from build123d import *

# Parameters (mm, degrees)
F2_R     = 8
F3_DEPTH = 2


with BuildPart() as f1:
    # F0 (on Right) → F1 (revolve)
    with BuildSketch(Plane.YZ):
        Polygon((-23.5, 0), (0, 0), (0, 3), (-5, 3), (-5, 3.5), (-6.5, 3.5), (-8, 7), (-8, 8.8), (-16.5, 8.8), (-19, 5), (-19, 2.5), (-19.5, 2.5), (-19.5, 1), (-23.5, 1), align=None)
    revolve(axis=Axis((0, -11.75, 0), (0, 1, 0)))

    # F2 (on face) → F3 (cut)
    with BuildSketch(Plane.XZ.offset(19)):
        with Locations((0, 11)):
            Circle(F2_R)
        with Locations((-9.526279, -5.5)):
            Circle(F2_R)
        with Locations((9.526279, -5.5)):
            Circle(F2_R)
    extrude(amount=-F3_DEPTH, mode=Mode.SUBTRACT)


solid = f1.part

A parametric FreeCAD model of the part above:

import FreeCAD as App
import Part
import Sketcher

V = App.Vector

doc = App.newDocument("Part")
params = doc.addObject("Spreadsheet::Sheet", "Params")
for row, (alias, value) in enumerate([
    ("sketch1_width", "5 mm"),
    ("sketch1_width2", "4 mm"),
    ("sketch1_height", "3 mm"),
    ("sketch1_height2", "1 mm"),
    ("sketch1_width3", "23.5 mm"),
    ("revolution_angle", "360 deg"),
    ("sketch2_diameter", "16 mm"),
    ("pocket1_length", "2 mm"),
], start=1):
    params.set(f"A{row}", alias)
    params.set(f"B{row}", "=" + value)
    params.setAlias(f"B{row}", alias)

body = doc.addObject("PartDesign::Body", "Body")

# Sketch on YZ plane
sketch1 = doc.addObject("Sketcher::SketchObject", "Sketch")
body.addObject(sketch1)
sketch1.AttachmentSupport = (doc.YZ_Plane, [""])
sketch1.MapMode = "FlatFace"
sketch1.addGeometry([
    Part.LineSegment(V(-23.5, 0, 0), V(0, 0, 0)),  # 0
    Part.LineSegment(V(0, 0, 0), V(0, 3, 0)),  # 1
    Part.LineSegment(V(0, 3, 0), V(-5, 3, 0)),  # 2
    Part.LineSegment(V(-5, 3, 0), V(-5, 3.5, 0)),  # 3
    Part.LineSegment(V(-5, 3.5, 0), V(-6.5, 3.5, 0)),  # 4
    Part.LineSegment(V(-6.5, 3.5, 0), V(-8, 7, 0)),  # 5
    Part.LineSegment(V(-8, 7, 0), V(-8, 8.8, 0)),  # 6
    Part.LineSegment(V(-8, 8.8, 0), V(-16.5, 8.8, 0)),  # 7
    Part.LineSegment(V(-16.5, 8.8, 0), V(-19, 5, 0)),  # 8
    Part.LineSegment(V(-19, 5, 0), V(-19, 2.5, 0)),  # 9
    Part.LineSegment(V(-19, 2.5, 0), V(-19.5, 2.5, 0)),  # 10
    Part.LineSegment(V(-19.5, 2.5, 0), V(-19.5, 1, 0)),  # 11
    Part.LineSegment(V(-19.5, 1, 0), V(-23.5, 1, 0)),  # 12
    Part.LineSegment(V(-23.5, 1, 0), V(-23.5, 0, 0)),  # 13
], False)
sketch1.addConstraint([
    Sketcher.Constraint("Coincident", 0, 2, 1, 1),
    Sketcher.Constraint("Coincident", 1, 2, 2, 1),
    Sketcher.Constraint("Coincident", 2, 2, 3, 1),
    Sketcher.Constraint("Coincident", 3, 2, 4, 1),
    Sketcher.Constraint("Coincident", 4, 2, 5, 1),
    Sketcher.Constraint("Coincident", 5, 2, 6, 1),
    Sketcher.Constraint("Coincident", 6, 2, 7, 1),
    Sketcher.Constraint("Coincident", 7, 2, 8, 1),
    Sketcher.Constraint("Coincident", 8, 2, 9, 1),
    Sketcher.Constraint("Coincident", 9, 2, 10, 1),
    Sketcher.Constraint("Coincident", 10, 2, 11, 1),
    Sketcher.Constraint("Coincident", 11, 2, 12, 1),
    Sketcher.Constraint("Coincident", 12, 2, 13, 1),
    Sketcher.Constraint("Coincident", 13, 2, 0, 1),
    Sketcher.Constraint("Horizontal", 0),
    Sketcher.Constraint("Vertical", 1),
    Sketcher.Constraint("Horizontal", 2),
    Sketcher.Constraint("Vertical", 3),
    Sketcher.Constraint("Horizontal", 4),
    Sketcher.Constraint("Vertical", 6),
    Sketcher.Constraint("Horizontal", 7),
    Sketcher.Constraint("Vertical", 9),
    Sketcher.Constraint("Horizontal", 10),
    Sketcher.Constraint("Vertical", 11),
    Sketcher.Constraint("Horizontal", 12),
    Sketcher.Constraint("Vertical", 13),
    Sketcher.Constraint("Coincident", 0, 2, -1, 1),
    Sketcher.Constraint("Equal", 10, 3),
    Sketcher.Constraint("Equal", 4, 11),
    Sketcher.Constraint("DistanceX", 2, 2, 2, 1, 5.0),
    Sketcher.Constraint("DistanceX", 12, 2, 12, 1, 4.0),
    Sketcher.Constraint("DistanceY", 1, 1, 1, 2, 3.0),
    Sketcher.Constraint("DistanceY", 13, 2, 13, 1, 1.0),
    Sketcher.Constraint("DistanceX", 0, 1, 0, 2, 23.5),
    Sketcher.Constraint("DistanceX", 4, 2, 4, 1, 1.5),
    Sketcher.Constraint("DistanceX", 7, 2, 7, 1, 8.5),
    Sketcher.Constraint("DistanceX", 10, 2, 10, 1, 0.5),
    Sketcher.Constraint("DistanceY", 6, 1, 6, 2, 1.8),
    Sketcher.Constraint("DistanceY", 9, 2, 9, 1, 2.5),
    Sketcher.Constraint("DistanceX", 5, 2, -1, 1, 8.0),
    Sketcher.Constraint("DistanceY", -1, 1, 5, 2, 7.0),
])
sketch1.setExpression("Constraints[29]", "Params.sketch1_width")
sketch1.setExpression("Constraints[30]", "Params.sketch1_width2")
sketch1.setExpression("Constraints[31]", "Params.sketch1_height")
sketch1.setExpression("Constraints[32]", "Params.sketch1_height2")
sketch1.setExpression("Constraints[33]", "Params.sketch1_width3")
revolution = doc.addObject("PartDesign::Revolution", "Revolution")
body.addObject(revolution)
revolution.Profile = sketch1
revolution.ReferenceAxis = (sketch1, ["H_Axis"])
revolution.setExpression("Angle", "Params.revolution_angle")

# Sketch on XZ plane
sketch2 = doc.addObject("Sketcher::SketchObject", "Sketch001")
body.addObject(sketch2)
sketch2.AttachmentSupport = (doc.XZ_Plane, [""])
sketch2.MapMode = "FlatFace"
sketch2.AttachmentOffset = App.Placement(V(0, 0, 19), App.Rotation())
sketch2.addGeometry([
    Part.Circle(V(0, 11, 0), V(0, 0, 1), 8),
    Part.Circle(V(-10, -6, 0), V(0, 0, 1), 8),
    Part.Circle(V(10, -6, 0), V(0, 0, 1), 8),
], False)
sketch2.addConstraint([
    Sketcher.Constraint("Equal", 0, 1),
    Sketcher.Constraint("Equal", 1, 2),
    Sketcher.Constraint("Symmetric", 1, 3, 2, 3, -2),
    Sketcher.Constraint("PointOnObject", 0, 3, -2),
    Sketcher.Constraint("Diameter", 0, 16.0),
    Sketcher.Constraint("DistanceY", -1, 1, 0, 3, 11.0),
    Sketcher.Constraint("DistanceY", 1, 3, -1, 1, 5.5),
    Sketcher.Constraint("DistanceX", 1, 3, -1, 1, 9.526279),
])
sketch2.setExpression("Constraints[4]", "Params.sketch2_diameter")
pocket1 = doc.addObject("PartDesign::Pocket", "Pocket")
body.addObject(pocket1)
pocket1.Profile = sketch2
pocket1.setExpression("Length", "Params.pocket1_length")

doc.recompute()
